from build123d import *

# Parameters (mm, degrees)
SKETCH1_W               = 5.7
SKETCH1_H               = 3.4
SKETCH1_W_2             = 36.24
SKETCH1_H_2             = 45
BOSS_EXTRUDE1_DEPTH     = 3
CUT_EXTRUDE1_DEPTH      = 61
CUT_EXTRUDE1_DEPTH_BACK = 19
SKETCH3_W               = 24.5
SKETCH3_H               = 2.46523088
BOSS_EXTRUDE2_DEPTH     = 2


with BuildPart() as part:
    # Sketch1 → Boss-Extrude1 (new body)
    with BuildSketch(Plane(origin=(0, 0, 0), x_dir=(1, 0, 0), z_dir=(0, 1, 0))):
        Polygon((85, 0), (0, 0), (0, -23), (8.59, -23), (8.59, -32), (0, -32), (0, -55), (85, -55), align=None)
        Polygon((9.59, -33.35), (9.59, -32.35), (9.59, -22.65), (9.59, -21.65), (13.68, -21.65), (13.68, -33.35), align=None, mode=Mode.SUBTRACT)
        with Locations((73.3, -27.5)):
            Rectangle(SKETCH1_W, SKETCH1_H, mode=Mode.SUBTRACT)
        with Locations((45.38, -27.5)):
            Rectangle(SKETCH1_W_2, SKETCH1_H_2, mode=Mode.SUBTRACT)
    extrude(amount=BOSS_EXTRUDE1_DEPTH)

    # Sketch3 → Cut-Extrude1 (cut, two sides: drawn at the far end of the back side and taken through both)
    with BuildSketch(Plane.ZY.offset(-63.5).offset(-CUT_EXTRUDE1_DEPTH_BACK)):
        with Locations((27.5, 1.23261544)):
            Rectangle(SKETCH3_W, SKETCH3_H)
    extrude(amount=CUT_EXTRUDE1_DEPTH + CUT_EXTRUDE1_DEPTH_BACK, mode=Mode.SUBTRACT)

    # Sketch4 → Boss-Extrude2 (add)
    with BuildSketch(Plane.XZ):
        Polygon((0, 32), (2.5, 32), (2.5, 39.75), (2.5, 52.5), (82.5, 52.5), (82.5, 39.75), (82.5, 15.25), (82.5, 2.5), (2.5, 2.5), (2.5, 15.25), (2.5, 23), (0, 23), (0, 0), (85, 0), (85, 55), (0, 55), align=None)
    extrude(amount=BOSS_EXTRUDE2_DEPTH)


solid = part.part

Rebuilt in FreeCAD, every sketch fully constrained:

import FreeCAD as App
import Part
import Sketcher
from FreeCAD import Vector


def add_polygon(sketch, points):
    """Adds a closed chain of lines whose ends are joined by coincident constraints."""
    first, n = sketch.GeometryCount, len(points)
    for a, b in zip(points, points[1:] + points[:1]):
        sketch.addGeometry(Part.LineSegment(App.Vector(*a, 0), App.Vector(*b, 0)), False)
    for i in range(n):
        sketch.addConstraint(Sketcher.Constraint("Coincident", first + i, 2, first + (i + 1) % n, 1))

doc = App.newDocument("Part")
body = doc.addObject("PartDesign::Body", "Body")

sketch1 = body.newObject("Sketcher::SketchObject", "Sketch")
sketch1.AttachmentSupport = (doc.getObject("XZ_Plane"), [""])
sketch1.MapMode = "FlatFace"
add_polygon(sketch1, [(85, 0), (0, 0), (0, 23), (8.59, 23), (8.59, 32), (0, 32), (0, 55), (85, 55)])
add_polygon(sketch1, [(13.68, 33.35), (9.59, 33.35), (9.59, 21.65), (13.68, 21.65)])
add_polygon(sketch1, [(63.5, 50), (27.26, 50), (27.26, 5), (63.5, 5)])
add_polygon(sketch1, [(76.15, 29.2), (70.45, 29.2), (70.45, 25.8), (76.15, 25.8)])
sketch1.addConstraint([
    Sketcher.Constraint("Horizontal", 0),
    Sketcher.Constraint("Vertical", 1),
    Sketcher.Constraint("Horizontal", 2),
    Sketcher.Constraint("Vertical", 3),
    Sketcher.Constraint("Horizontal", 4),
    Sketcher.Constraint("Vertical", 5),
    Sketcher.Constraint("Horizontal", 6),
    Sketcher.Constraint("Vertical", 7),
    Sketcher.Constraint("Horizontal", 8),
    Sketcher.Constraint("Vertical", 9),
    Sketcher.Constraint("Horizontal", 10),
    Sketcher.Constraint("Vertical", 11),
    Sketcher.Constraint("Horizontal", 12),
    Sketcher.Constraint("Vertical", 13),
    Sketcher.Constraint("Horizontal", 14),
    Sketcher.Constraint("Vertical", 15),
    Sketcher.Constraint("Horizontal", 16),
    Sketcher.Constraint("Vertical", 17),
    Sketcher.Constraint("Horizontal", 18),
    Sketcher.Constraint("Vertical", 19),
    Sketcher.Constraint("Coincident", 0, 2, -1, 1),
    Sketcher.Constraint("PointOnObject", 4, 2, -2),
    Sketcher.Constraint("Equal", 1, 5),
    Sketcher.Constraint("DistanceX", 0, 2, 0, 1, 85.0),
    Sketcher.Constraint("DistanceY", 1, 1, 1, 2, 23.0),
    Sketcher.Constraint("DistanceY", 3, 1, 3, 2, 9.0),
    Sketcher.Constraint("DistanceY", 13, 2, 13, 1, 45.0),
    Sketcher.Constraint("DistanceX", 16, 2, 16, 1, 5.7),
    Sketcher.Constraint("DistanceY", 9, 2, 9, 1, 11.7),
    Sketcher.Constraint("DistanceY", 17, 2, 17, 1, 3.4),
    Sketcher.Constraint("DistanceY", -1, 1, 12, 2, 50.0),
    Sketcher.Constraint("DistanceX", 3, 2, 8, 2, 1.0),
    Sketcher.Constraint("DistanceX", 2, 1, 2, 2, 8.59),
    Sketcher.Constraint("DistanceX", 8, 2, 8, 1, 4.09),
    Sketcher.Constraint("DistanceX", 12, 2, 12, 1, 36.24),
    Sketcher.Constraint("DistanceX", -1, 1, 14, 2, 63.5),
    Sketcher.Constraint("DistanceY", -1, 1, 16, 2, 29.2),
    Sketcher.Constraint("DistanceY", -1, 1, 8, 2, 33.35),
    Sketcher.Constraint("DistanceX", -1, 1, 16, 2, 70.45),
])
pad1 = body.newObject("PartDesign::Pad", "Pad")
pad1.Profile = sketch1
pad1.Length = 3
pad1.Reversed = True

sketch2 = body.newObject("Sketcher::SketchObject", "Sketch001")
sketch2.AttachmentSupport = (doc.getObject("YZ_Plane"), [""])
sketch2.MapMode = "FlatFace"
sketch2.AttachmentOffset = App.Placement(Vector(0, 0, 63.5), App.Rotation())
add_polygon(sketch2, [(2.465231, 15.25), (0, 15.25), (0, 39.75), (2.465231, 39.75)])
sketch2.addConstraint([
    Sketcher.Constraint("Horizontal", 0),
    Sketcher.Constraint("Vertical", 1),
    Sketcher.Constraint("Horizontal", 2),
    Sketcher.Constraint("Vertical", 3),
    Sketcher.Constraint("PointOnObject", 0, 2, -2),
    Sketcher.Constraint("DistanceY", 1, 1, 1, 2, 24.5),
    Sketcher.Constraint("DistanceY", -1, 1, 0, 2, 15.25),
    Sketcher.Constraint("DistanceX", 0, 2, 0, 1, 2.465231),
])
pocket1 = body.newObject("PartDesign::Pocket", "Pocket")
pocket1.Profile = sketch2
pocket1.Type = "TwoLengths"
pocket1.Length = 61
pocket1.Length2 = 19

sketch3 = body.newObject("Sketcher::SketchObject", "Sketch002")
sketch3.AttachmentSupport = (doc.getObject("XZ_Plane"), [""])
sketch3.MapMode = "FlatFace"
add_polygon(sketch3, [(0, 32), (2.5, 32), (2.5, 52.5), (82.5, 52.5), (82.5, 2.5), (2.5, 2.5), (2.5, 23), (0, 23), (0, 0), (85, 0), (85, 55), (0, 55)])
sketch3.addConstraint([
    Sketcher.Constraint("Horizontal", 0),
    Sketcher.Constraint("Vertical", 1),
    Sketcher.Constraint("Horizontal", 2),
    Sketcher.Constraint("Vertical", 3),
    Sketcher.Constraint("Horizontal", 4),
    Sketcher.Constraint("Vertical", 5),
    Sketcher.Constraint("Horizontal", 6),
    Sketcher.Constraint("Vertical", 7),
    Sketcher.Constraint("Horizontal", 8),
    Sketcher.Constraint("Vertical", 9),
    Sketcher.Constraint("Horizontal", 10),
    Sketcher.Constraint("Vertical", 11),
    Sketcher.Constraint("Coincident", 7, 2, -1, 1),
    Sketcher.Constraint("PointOnObject", 10, 2, -2),
    Sketcher.Constraint("Vertical", 1, 2, 4, 2),
    Sketcher.Constraint("Equal", 1, 5),
    Sketcher.Constraint("Equal", 7, 11),
    Sketcher.Constraint("DistanceX", 2, 1, 2, 2, 80.0),
    Sketcher.Constraint("DistanceX", 8, 1, 8, 2, 85.0),
    Sketcher.Constraint("DistanceY", 3, 2, 3, 1, 50.0),
    Sketcher.Constraint("DistanceY", 7, 2, 7, 1, 23.0),
    Sketcher.Constraint("DistanceY", 9, 1, 9, 2, 55.0),
    Sketcher.Constraint("DistanceX", 0, 1, 0, 2, 2.5),
])
pad2 = body.newObject("PartDesign::Pad", "Pad001")
pad2.Profile = sketch3
pad2.Length = 2

doc.recompute()
